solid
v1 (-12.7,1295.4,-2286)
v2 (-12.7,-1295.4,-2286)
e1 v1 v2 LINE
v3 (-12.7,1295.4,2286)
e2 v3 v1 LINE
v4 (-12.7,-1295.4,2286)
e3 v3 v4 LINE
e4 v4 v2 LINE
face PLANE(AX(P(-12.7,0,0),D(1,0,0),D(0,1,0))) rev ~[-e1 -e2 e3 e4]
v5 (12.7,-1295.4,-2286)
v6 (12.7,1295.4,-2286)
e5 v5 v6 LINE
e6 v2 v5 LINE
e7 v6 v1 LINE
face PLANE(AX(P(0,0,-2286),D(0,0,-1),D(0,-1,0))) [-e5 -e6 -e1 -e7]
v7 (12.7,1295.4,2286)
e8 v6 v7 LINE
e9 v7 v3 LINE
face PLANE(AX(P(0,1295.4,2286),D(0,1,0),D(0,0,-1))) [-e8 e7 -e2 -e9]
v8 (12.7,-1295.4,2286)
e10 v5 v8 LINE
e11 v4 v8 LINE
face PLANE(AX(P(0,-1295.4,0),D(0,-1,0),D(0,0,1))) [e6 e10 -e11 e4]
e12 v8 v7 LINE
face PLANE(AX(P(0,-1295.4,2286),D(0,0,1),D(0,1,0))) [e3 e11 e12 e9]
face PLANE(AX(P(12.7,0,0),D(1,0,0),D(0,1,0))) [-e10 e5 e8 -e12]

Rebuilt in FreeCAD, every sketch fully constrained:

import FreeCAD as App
import Part
import Sketcher
Q = App.Units.Quantity


def add_polygon(sketch, points):
    """Adds a closed chain of lines whose ends are joined by coincident constraints."""
    first, n = sketch.GeometryCount, len(points)
    for a, b in zip(points, points[1:] + points[:1]):
        sketch.addGeometry(Part.LineSegment(App.Vector(*a, 0), App.Vector(*b, 0)), False)
    for i in range(n):
        sketch.addConstraint(Sketcher.Constraint("Coincident", first + i, 2, first + (i + 1) % n, 1))

doc = App.newDocument("Part")
body = doc.addObject("PartDesign::Body", "Body")

# Sketch on YZ plane
sketch1 = body.newObject("Sketcher::SketchObject", "Sketch")
sketch1.AttachmentSupport = (doc.getObject("YZ_Plane"), [""])
sketch1.MapMode = "FlatFace"
add_polygon(sketch1, [(-1295, 2286), (-1295, -2286), (1295, -2286), (1295, 2286)])  # lines 0-3
sketch1.addConstraint([
    Sketcher.Constraint("Vertical", 0),
    Sketcher.Constraint("Horizontal", 1),
    Sketcher.Constraint("Vertical", 2),
    Sketcher.Constraint("Horizontal", 3),
    Sketcher.Constraint("Symmetric", 0, 2, 2, 2, -1, 1),
    Sketcher.Constraint("DistanceX", 1, 1, 1, 2, Q("102 in")),
    Sketcher.Constraint("DistanceY", 0, 2, 0, 1, Q("180 in")),
])
pad1 = body.newObject("PartDesign::Pad", "Pad")
pad1.Profile = sketch1
pad1.Length = Q("1 in")
pad1.Midplane = True

doc.recompute()
